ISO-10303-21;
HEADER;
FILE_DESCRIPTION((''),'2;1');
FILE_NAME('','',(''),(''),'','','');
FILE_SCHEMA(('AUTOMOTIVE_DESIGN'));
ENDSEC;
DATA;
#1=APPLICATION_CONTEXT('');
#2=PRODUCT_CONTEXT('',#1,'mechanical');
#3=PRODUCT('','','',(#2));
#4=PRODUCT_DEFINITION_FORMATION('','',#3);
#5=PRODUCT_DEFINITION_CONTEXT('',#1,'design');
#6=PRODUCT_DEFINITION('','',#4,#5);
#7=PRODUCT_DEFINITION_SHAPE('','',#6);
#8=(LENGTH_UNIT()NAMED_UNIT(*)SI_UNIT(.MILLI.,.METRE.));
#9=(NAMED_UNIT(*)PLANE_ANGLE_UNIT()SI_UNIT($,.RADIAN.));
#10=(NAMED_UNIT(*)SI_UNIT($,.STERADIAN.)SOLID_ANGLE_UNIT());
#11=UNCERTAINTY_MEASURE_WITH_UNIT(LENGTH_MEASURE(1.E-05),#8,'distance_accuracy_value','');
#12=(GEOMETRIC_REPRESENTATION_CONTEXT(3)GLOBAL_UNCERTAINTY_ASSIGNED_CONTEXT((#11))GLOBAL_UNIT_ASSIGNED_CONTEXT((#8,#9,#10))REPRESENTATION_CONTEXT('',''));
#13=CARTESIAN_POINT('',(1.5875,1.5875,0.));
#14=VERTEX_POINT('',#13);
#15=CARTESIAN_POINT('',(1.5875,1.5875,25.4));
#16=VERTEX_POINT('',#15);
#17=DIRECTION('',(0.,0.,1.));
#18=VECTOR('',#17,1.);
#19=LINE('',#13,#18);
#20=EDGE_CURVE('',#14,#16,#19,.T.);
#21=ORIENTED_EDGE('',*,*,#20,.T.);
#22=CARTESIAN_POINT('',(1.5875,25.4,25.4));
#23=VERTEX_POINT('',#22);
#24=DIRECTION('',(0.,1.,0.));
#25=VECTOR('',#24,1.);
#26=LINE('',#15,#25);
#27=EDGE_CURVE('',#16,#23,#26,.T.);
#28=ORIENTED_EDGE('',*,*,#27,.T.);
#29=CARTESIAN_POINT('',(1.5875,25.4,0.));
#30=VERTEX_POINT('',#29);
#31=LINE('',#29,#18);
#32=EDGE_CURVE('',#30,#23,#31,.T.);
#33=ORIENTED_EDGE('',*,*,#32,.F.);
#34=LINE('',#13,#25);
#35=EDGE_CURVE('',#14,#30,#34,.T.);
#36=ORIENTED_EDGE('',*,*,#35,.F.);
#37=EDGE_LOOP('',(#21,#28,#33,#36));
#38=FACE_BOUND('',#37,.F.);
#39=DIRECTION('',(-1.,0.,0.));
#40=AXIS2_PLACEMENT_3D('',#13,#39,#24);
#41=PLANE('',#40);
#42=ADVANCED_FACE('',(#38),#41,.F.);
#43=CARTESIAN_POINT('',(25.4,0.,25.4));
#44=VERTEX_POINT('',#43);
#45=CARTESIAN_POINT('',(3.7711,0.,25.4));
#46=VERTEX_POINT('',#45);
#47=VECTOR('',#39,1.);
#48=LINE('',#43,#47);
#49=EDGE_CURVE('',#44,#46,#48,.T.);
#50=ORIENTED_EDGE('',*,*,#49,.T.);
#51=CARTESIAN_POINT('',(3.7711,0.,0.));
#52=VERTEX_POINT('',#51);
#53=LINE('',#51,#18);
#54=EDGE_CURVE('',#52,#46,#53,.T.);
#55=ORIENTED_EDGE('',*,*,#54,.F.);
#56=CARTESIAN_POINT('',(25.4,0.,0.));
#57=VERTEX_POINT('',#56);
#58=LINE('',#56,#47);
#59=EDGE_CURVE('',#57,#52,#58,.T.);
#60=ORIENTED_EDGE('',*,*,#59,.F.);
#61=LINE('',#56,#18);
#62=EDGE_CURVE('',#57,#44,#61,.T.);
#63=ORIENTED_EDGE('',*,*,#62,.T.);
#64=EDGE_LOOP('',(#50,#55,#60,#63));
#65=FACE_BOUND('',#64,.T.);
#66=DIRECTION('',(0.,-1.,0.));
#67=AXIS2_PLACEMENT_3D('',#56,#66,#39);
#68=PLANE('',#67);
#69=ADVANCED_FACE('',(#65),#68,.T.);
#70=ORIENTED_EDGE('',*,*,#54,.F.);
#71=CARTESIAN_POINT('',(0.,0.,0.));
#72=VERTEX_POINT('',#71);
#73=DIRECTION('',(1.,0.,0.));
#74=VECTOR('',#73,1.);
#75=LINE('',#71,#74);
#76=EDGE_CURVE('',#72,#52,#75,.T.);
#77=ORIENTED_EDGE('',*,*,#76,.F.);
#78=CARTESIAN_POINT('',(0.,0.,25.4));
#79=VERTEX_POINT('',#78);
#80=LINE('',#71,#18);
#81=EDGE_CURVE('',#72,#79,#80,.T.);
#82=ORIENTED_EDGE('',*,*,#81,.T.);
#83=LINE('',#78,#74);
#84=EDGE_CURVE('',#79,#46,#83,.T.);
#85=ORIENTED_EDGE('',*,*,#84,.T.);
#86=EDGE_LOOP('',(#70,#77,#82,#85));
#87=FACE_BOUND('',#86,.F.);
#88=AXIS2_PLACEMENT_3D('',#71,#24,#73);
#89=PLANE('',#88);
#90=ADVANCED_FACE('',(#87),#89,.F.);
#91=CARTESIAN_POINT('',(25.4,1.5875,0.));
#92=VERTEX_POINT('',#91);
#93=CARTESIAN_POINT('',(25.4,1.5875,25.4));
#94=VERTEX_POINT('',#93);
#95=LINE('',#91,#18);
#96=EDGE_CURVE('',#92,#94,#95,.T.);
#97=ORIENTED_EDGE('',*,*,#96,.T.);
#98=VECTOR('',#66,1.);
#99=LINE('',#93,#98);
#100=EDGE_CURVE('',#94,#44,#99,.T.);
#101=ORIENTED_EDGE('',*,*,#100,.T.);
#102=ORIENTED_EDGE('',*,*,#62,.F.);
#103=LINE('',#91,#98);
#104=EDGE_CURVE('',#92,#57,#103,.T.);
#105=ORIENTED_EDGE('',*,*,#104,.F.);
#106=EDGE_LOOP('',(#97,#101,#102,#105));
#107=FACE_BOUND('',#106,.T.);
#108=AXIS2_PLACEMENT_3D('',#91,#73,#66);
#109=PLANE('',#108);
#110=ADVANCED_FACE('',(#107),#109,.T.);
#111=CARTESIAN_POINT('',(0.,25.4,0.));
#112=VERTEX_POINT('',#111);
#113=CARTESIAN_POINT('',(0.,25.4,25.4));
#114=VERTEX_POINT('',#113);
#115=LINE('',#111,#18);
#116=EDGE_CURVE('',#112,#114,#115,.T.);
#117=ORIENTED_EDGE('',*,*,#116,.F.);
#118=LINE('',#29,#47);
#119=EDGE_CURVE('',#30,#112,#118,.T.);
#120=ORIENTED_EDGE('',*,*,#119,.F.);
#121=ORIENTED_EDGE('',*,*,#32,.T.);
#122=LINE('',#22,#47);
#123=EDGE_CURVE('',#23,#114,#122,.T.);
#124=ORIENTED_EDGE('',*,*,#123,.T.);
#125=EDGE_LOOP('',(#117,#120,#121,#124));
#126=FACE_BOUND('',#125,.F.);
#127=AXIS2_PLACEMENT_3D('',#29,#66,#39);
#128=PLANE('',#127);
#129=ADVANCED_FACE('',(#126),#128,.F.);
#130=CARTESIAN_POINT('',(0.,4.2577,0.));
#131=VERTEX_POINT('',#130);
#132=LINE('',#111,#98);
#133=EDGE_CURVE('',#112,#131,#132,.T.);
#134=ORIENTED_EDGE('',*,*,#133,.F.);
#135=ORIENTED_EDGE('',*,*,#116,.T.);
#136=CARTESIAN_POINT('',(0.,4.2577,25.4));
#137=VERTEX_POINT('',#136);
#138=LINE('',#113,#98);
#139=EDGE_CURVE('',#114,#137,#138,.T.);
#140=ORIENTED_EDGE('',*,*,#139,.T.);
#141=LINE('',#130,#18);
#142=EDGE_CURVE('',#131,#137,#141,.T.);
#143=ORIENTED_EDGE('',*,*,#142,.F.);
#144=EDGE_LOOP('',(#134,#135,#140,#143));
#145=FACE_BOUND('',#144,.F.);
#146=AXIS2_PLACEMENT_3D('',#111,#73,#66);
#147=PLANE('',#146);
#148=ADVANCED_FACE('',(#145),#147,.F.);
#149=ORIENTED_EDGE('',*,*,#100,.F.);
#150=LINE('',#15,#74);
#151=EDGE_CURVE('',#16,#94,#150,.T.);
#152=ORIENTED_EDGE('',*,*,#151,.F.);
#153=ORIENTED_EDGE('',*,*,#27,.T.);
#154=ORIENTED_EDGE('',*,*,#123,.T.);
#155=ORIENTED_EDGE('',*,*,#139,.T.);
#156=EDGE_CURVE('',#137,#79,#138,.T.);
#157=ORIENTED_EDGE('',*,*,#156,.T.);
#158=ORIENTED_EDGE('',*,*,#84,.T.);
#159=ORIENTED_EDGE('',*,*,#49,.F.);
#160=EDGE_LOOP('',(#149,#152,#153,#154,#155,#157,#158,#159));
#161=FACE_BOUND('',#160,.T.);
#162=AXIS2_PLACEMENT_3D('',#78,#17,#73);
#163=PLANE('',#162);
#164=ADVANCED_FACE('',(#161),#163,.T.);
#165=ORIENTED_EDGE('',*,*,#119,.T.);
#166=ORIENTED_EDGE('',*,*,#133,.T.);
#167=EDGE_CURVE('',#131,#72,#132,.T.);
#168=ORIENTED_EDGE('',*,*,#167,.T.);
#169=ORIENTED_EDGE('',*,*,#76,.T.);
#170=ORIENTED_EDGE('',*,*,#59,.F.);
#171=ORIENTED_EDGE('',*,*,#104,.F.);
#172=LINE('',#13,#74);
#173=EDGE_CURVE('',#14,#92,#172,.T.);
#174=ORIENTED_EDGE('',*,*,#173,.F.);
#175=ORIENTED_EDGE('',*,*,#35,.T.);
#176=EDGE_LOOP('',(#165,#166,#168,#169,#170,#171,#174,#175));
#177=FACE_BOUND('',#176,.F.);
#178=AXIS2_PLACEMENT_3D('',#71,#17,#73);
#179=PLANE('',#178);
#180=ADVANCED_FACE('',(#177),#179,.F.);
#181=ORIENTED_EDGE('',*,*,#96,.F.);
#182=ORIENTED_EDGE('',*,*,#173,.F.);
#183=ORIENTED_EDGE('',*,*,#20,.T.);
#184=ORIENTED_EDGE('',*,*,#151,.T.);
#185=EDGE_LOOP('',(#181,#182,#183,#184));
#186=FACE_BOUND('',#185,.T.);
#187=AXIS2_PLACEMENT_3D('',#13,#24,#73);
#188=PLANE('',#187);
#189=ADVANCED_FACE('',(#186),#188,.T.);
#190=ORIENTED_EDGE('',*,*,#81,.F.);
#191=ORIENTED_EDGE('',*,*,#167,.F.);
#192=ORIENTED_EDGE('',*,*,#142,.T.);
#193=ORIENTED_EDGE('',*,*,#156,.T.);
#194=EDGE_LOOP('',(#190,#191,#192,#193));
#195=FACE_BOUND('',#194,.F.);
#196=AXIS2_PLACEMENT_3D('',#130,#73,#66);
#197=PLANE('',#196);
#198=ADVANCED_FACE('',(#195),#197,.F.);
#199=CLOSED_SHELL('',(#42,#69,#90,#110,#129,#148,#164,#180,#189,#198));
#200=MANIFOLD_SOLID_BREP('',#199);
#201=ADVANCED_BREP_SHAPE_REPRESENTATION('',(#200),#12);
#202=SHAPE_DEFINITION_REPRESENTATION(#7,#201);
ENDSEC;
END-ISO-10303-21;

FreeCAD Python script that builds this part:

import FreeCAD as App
import Part
import Sketcher
Q = App.Units.Quantity


def add_polygon(sketch, points):
    """Adds a closed chain of lines whose ends are joined by coincident constraints."""
    first, n = sketch.GeometryCount, len(points)
    for a, b in zip(points, points[1:] + points[:1]):
        sketch.addGeometry(Part.LineSegment(App.Vector(*a, 0), App.Vector(*b, 0)), False)
    for i in range(n):
        sketch.addConstraint(Sketcher.Constraint("Coincident", first + i, 2, first + (i + 1) % n, 1))

doc = App.newDocument("Part")
body = doc.addObject("PartDesign::Body", "Body")

sketch1 = body.newObject("Sketcher::SketchObject", "Sketch")
sketch1.AttachmentSupport = (doc.getObject("XY_Plane"), [""])
sketch1.MapMode = "FlatFace"
add_polygon(sketch1, [(0, 25.4), (0, 0), (25.4, 0), (25.4, 1.6), (1.6, 1.6), (1.6, 25.4)])
sketch1.addConstraint([
    Sketcher.Constraint("Vertical", 0),
    Sketcher.Constraint("Horizontal", 1),
    Sketcher.Constraint("Vertical", 2),
    Sketcher.Constraint("Horizontal", 3),
    Sketcher.Constraint("Vertical", 4),
    Sketcher.Constraint("Horizontal", 5),
    Sketcher.Constraint("Coincident", 0, 2, -1, 1),
    Sketcher.Constraint("Equal", 1, 0),
    Sketcher.Constraint("Equal", 5, 2),
    Sketcher.Constraint("DistanceX", 1, 1, 1, 2, Q("1 in")),
    Sketcher.Constraint("DistanceX", 5, 2, 5, 1, Q("0.0625 in")),
])
pad1 = body.newObject("PartDesign::Pad", "Pad")
pad1.Profile = sketch1
pad1.Length = Q("1 in")

doc.recompute()
